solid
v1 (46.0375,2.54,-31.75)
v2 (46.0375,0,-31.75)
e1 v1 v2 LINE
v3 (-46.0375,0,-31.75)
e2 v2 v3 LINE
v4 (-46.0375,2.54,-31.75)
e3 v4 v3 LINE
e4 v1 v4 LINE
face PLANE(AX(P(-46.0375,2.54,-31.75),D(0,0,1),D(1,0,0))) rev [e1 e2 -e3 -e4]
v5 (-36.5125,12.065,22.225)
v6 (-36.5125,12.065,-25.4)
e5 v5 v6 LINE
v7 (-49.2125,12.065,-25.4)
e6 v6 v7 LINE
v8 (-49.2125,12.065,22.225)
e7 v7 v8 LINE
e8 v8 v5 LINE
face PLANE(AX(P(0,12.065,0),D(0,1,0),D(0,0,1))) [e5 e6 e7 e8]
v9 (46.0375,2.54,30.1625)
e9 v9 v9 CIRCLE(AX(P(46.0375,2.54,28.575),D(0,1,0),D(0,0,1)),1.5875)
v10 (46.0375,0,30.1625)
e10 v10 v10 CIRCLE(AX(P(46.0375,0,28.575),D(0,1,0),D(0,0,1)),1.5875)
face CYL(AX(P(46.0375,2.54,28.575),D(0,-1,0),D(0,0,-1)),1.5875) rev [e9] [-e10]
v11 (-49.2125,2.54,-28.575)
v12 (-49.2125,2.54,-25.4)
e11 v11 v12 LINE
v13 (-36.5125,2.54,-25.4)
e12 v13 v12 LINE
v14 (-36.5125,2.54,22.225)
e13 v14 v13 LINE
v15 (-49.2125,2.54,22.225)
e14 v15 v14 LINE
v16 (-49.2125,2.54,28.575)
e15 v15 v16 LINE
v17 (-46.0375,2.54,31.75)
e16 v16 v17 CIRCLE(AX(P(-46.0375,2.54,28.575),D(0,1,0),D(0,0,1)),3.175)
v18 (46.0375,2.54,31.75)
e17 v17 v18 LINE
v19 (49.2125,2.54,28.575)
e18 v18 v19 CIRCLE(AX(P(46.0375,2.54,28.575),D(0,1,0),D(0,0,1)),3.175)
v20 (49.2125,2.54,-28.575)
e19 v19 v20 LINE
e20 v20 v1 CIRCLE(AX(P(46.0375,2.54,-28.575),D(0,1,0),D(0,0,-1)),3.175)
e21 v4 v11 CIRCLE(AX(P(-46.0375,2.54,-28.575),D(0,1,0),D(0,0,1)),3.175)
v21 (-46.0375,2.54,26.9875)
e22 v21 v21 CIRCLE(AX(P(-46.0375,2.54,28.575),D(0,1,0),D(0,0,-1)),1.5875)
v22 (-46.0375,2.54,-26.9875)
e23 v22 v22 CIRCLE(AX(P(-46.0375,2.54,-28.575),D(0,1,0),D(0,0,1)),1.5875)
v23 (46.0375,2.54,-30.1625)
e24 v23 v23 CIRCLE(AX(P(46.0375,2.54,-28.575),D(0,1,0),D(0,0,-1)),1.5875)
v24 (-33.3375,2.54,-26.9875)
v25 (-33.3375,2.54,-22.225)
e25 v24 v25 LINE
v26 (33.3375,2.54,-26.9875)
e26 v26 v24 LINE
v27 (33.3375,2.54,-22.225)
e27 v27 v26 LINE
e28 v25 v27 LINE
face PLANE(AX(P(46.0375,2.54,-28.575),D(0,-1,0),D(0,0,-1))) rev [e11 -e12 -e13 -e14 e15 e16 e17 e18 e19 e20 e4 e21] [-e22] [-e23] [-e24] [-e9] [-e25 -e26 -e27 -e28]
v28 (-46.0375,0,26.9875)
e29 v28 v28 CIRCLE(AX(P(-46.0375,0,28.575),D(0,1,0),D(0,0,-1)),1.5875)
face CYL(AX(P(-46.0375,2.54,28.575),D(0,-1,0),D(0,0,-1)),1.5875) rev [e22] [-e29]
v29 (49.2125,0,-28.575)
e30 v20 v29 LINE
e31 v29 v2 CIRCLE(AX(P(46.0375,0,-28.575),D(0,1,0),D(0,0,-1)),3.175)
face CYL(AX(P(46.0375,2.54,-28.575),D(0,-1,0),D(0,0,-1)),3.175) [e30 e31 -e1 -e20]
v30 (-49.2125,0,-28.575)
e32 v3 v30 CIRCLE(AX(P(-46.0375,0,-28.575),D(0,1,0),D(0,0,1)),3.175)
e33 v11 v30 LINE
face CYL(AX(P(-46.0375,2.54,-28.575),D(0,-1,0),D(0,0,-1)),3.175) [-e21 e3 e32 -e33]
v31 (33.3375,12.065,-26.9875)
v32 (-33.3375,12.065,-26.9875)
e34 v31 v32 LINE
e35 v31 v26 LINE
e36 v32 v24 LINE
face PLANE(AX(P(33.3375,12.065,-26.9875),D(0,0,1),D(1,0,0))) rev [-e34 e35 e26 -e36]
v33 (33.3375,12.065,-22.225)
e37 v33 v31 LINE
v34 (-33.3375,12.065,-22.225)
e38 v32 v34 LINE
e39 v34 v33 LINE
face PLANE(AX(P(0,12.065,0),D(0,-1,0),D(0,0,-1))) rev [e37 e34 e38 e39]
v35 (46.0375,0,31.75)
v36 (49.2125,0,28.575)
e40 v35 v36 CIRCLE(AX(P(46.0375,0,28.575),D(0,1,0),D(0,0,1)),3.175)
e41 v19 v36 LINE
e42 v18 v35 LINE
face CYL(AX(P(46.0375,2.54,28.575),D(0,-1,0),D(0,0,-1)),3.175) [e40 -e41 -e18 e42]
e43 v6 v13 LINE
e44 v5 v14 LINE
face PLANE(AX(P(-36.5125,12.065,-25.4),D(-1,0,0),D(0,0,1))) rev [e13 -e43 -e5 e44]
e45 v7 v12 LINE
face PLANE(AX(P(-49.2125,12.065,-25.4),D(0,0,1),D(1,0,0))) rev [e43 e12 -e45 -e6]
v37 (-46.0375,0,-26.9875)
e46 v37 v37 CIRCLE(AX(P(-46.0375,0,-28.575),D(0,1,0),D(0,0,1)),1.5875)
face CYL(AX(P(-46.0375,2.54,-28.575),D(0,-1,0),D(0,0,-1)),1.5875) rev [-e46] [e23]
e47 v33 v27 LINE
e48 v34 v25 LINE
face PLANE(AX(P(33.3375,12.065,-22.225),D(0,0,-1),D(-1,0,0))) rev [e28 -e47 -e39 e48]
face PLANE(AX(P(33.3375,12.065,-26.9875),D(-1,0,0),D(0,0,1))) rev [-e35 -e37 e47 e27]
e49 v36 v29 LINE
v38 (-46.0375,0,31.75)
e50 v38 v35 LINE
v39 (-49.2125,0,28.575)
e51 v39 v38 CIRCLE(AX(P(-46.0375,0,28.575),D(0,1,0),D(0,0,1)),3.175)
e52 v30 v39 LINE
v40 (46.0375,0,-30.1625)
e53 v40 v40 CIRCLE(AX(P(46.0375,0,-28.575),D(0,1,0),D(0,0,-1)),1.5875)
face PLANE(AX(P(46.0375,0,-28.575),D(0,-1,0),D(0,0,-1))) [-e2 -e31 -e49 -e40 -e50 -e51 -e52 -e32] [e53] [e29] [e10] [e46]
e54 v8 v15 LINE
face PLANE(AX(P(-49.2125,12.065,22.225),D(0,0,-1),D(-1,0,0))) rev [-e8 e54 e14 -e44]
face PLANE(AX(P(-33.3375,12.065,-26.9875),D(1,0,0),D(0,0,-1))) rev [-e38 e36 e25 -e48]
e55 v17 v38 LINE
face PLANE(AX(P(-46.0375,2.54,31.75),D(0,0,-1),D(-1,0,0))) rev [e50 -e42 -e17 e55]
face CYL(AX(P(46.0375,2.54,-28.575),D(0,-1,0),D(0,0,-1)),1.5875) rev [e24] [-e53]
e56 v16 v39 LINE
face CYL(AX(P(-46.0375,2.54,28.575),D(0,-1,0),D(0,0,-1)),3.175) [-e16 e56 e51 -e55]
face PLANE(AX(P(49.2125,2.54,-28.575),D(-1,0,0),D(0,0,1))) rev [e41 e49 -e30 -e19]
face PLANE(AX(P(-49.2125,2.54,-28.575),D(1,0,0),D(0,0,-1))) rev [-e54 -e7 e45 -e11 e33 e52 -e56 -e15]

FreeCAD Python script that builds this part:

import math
import FreeCAD as App
import Part
import Sketcher
Q = App.Units.Quantity


def add_polygon(sketch, points):
    """Adds a closed chain of lines whose ends are joined by coincident constraints."""
    first, n = sketch.GeometryCount, len(points)
    for a, b in zip(points, points[1:] + points[:1]):
        sketch.addGeometry(Part.LineSegment(App.Vector(*a, 0), App.Vector(*b, 0)), False)
    for i in range(n):
        sketch.addConstraint(Sketcher.Constraint("Coincident", first + i, 2, first + (i + 1) % n, 1))

doc = App.newDocument("Part")
params = doc.addObject("Spreadsheet::Sheet", "Params")
for row, (alias, value) in enumerate([
    ("sketch1_diameter", "0.125 in"),
    ("sketch1_radius", "0.125 in"),
    ("sketch1_height", "2.25 in"),
    ("sketch1_width", "3.625 in"),
    ("pad1_length", "0.1 in"),
    ("sketch2_width", "0.5 in"),
    ("sketch2_height", "1.875 in"),
    ("pad2_length", "0.375 in"),
    ("sketch3_width", "2.625 in"),
    ("sketch3_height", "0.1875 in"),
    ("pad3_length", "0.375 in"),
], start=1):
    params.set(f"A{row}", alias)
    params.set(f"B{row}", "=" + value)
    params.setAlias(f"B{row}", alias)

body = doc.addObject("PartDesign::Body", "Body")

sketch1 = body.newObject("Sketcher::SketchObject", "Sketch")
sketch1.AttachmentSupport = (doc.getObject("XZ_Plane"), [""])
sketch1.MapMode = "FlatFace"
sketch1.addGeometry([
    Part.LineSegment(App.Vector(46, -31.8, 0), App.Vector(-46, -31.8, 0)),
    Part.ArcOfCircle(Part.Circle(App.Vector(-46, -28.6, 0), App.Vector(0, 0, 1), 3.2), math.radians(-180), math.radians(-90)),
    Part.LineSegment(App.Vector(-49.2, -28.6, 0), App.Vector(-49.2, 28.6, 0)),
    Part.ArcOfCircle(Part.Circle(App.Vector(-46, 28.6, 0), App.Vector(0, 0, 1), 3.2), math.radians(90), math.radians(180)),
    Part.LineSegment(App.Vector(-46, 31.8, 0), App.Vector(46, 31.8, 0)),
    Part.ArcOfCircle(Part.Circle(App.Vector(46, 28.6, 0), App.Vector(0, 0, 1), 3.2), math.radians(0), math.radians(90)),
    Part.LineSegment(App.Vector(49.2, 28.6, 0), App.Vector(49.2, -28.6, 0)),
    Part.ArcOfCircle(Part.Circle(App.Vector(46, -28.6, 0), App.Vector(0, 0, 1), 3.2), math.radians(-90), math.radians(0)),
    Part.Circle(App.Vector(46, 28.6, 0), App.Vector(0, 0, 1), 1.6),
    Part.Circle(App.Vector(-46, 28.6, 0), App.Vector(0, 0, 1), 1.6),
    Part.Circle(App.Vector(46, -28.6, 0), App.Vector(0, 0, 1), 1.6),
    Part.Circle(App.Vector(-46, -28.6, 0), App.Vector(0, 0, 1), 1.6),
], False)
sketch1.addConstraint([
    Sketcher.Constraint("Tangent", 0, 2, 1, 2),
    Sketcher.Constraint("Tangent", 1, 1, 2, 1),
    Sketcher.Constraint("Tangent", 2, 2, 3, 2),
    Sketcher.Constraint("Tangent", 3, 1, 4, 1),
    Sketcher.Constraint("Tangent", 4, 2, 5, 2),
    Sketcher.Constraint("Tangent", 5, 1, 6, 1),
    Sketcher.Constraint("Tangent", 6, 2, 7, 2),
    Sketcher.Constraint("Tangent", 7, 1, 0, 1),
    Sketcher.Constraint("Horizontal", 0),
    Sketcher.Constraint("Vertical", 2),
    Sketcher.Constraint("Horizontal", 4),
    Sketcher.Constraint("Vertical", 6),
    Sketcher.Constraint("Coincident", 8, 3, 5, 3),
    Sketcher.Constraint("Coincident", 9, 3, 3, 3),
    Sketcher.Constraint("Coincident", 10, 3, 7, 3),
    Sketcher.Constraint("Coincident", 11, 3, 1, 3),
    Sketcher.Constraint("Equal", 1, 3),
    Sketcher.Constraint("Equal", 3, 5),
    Sketcher.Constraint("Equal", 5, 7),
    Sketcher.Constraint("Equal", 8, 9),
    Sketcher.Constraint("Equal", 9, 10),
    Sketcher.Constraint("Equal", 10, 11),
    Sketcher.Constraint("Symmetric", 1, 3, 5, 3, -1, 1),
    Sketcher.Constraint("Diameter", 8, Q("0.125 in")),
    Sketcher.Constraint("Radius", 1, Q("0.125 in")),
    Sketcher.Constraint("DistanceY", 2, 1, 2, 2, Q("2.25 in")),
    Sketcher.Constraint("DistanceX", 0, 2, 0, 1, Q("3.625 in")),
])
sketch1.setExpression("Constraints[23]", "Params.sketch1_diameter")
sketch1.setExpression("Constraints[24]", "Params.sketch1_radius")
sketch1.setExpression("Constraints[25]", "Params.sketch1_height")
sketch1.setExpression("Constraints[26]", "Params.sketch1_width")
pad1 = body.newObject("PartDesign::Pad", "Pad")
pad1.Profile = sketch1
pad1.setExpression("Length", "Params.pad1_length")
pad1.Reversed = True

sketch2 = body.newObject("Sketcher::SketchObject", "Sketch001")
sketch2.AttachmentSupport = (doc.getObject("XZ_Plane"), [""])
sketch2.MapMode = "FlatFace"
sketch2.AttachmentOffset = App.Placement(App.Vector(0, 0, -0.1 * 25.4), App.Rotation())
add_polygon(sketch2, [(-49, -25), (-49, 22), (-37, 22), (-37, -25)])
sketch2.addConstraint([
    Sketcher.Constraint("Vertical", 0),
    Sketcher.Constraint("Horizontal", 1),
    Sketcher.Constraint("Vertical", 2),
    Sketcher.Constraint("Horizontal", 3),
    Sketcher.Constraint("DistanceX", 1, 1, 1, 2, Q("0.5 in")),
    Sketcher.Constraint("DistanceY", 2, 2, -1, 1, Q("1 in")),
    Sketcher.Constraint("DistanceY", 0, 1, 0, 2, Q("1.875 in")),
    Sketcher.Constraint("DistanceX", 0, 2, -1, 1, Q("1.9375 in")),
])
sketch2.setExpression("Constraints[8]", "Params.sketch2_width")
sketch2.setExpression("Constraints[10]", "Params.sketch2_height")
pad2 = body.newObject("PartDesign::Pad", "Pad001")
pad2.Profile = sketch2
pad2.setExpression("Length", "Params.pad2_length")
pad2.Reversed = True

sketch3 = body.newObject("Sketcher::SketchObject", "Sketch002")
sketch3.AttachmentSupport = (doc.getObject("XZ_Plane"), [""])
sketch3.MapMode = "FlatFace"
sketch3.AttachmentOffset = App.Placement(App.Vector(0, 0, -0.1 * 25.4), App.Rotation())
add_polygon(sketch3, [(-33.3, -27), (-33.3, -22.2), (33.3, -22.2), (33.3, -27)])
sketch3.addConstraint([
    Sketcher.Constraint("Vertical", 0),
    Sketcher.Constraint("Horizontal", 1),
    Sketcher.Constraint("Vertical", 2),
    Sketcher.Constraint("Horizontal", 3),
    Sketcher.Constraint("DistanceX", 1, 1, 1, 2, Q("2.625 in")),
    Sketcher.Constraint("DistanceY", 0, 1, 0, 2, Q("0.1875 in")),
    Sketcher.Constraint("DistanceX", 0, 2, -1, 1, Q("1.3125 in")),
    Sketcher.Constraint("DistanceY", 0, 2, -1, 1, Q("0.875 in")),
])
sketch3.setExpression("Constraints[8]", "Params.sketch3_width")
sketch3.setExpression("Constraints[9]", "Params.sketch3_height")
pad3 = body.newObject("PartDesign::Pad", "Pad002")
pad3.Profile = sketch3
pad3.setExpression("Length", "Params.pad3_length")
pad3.Reversed = True

doc.recompute()
